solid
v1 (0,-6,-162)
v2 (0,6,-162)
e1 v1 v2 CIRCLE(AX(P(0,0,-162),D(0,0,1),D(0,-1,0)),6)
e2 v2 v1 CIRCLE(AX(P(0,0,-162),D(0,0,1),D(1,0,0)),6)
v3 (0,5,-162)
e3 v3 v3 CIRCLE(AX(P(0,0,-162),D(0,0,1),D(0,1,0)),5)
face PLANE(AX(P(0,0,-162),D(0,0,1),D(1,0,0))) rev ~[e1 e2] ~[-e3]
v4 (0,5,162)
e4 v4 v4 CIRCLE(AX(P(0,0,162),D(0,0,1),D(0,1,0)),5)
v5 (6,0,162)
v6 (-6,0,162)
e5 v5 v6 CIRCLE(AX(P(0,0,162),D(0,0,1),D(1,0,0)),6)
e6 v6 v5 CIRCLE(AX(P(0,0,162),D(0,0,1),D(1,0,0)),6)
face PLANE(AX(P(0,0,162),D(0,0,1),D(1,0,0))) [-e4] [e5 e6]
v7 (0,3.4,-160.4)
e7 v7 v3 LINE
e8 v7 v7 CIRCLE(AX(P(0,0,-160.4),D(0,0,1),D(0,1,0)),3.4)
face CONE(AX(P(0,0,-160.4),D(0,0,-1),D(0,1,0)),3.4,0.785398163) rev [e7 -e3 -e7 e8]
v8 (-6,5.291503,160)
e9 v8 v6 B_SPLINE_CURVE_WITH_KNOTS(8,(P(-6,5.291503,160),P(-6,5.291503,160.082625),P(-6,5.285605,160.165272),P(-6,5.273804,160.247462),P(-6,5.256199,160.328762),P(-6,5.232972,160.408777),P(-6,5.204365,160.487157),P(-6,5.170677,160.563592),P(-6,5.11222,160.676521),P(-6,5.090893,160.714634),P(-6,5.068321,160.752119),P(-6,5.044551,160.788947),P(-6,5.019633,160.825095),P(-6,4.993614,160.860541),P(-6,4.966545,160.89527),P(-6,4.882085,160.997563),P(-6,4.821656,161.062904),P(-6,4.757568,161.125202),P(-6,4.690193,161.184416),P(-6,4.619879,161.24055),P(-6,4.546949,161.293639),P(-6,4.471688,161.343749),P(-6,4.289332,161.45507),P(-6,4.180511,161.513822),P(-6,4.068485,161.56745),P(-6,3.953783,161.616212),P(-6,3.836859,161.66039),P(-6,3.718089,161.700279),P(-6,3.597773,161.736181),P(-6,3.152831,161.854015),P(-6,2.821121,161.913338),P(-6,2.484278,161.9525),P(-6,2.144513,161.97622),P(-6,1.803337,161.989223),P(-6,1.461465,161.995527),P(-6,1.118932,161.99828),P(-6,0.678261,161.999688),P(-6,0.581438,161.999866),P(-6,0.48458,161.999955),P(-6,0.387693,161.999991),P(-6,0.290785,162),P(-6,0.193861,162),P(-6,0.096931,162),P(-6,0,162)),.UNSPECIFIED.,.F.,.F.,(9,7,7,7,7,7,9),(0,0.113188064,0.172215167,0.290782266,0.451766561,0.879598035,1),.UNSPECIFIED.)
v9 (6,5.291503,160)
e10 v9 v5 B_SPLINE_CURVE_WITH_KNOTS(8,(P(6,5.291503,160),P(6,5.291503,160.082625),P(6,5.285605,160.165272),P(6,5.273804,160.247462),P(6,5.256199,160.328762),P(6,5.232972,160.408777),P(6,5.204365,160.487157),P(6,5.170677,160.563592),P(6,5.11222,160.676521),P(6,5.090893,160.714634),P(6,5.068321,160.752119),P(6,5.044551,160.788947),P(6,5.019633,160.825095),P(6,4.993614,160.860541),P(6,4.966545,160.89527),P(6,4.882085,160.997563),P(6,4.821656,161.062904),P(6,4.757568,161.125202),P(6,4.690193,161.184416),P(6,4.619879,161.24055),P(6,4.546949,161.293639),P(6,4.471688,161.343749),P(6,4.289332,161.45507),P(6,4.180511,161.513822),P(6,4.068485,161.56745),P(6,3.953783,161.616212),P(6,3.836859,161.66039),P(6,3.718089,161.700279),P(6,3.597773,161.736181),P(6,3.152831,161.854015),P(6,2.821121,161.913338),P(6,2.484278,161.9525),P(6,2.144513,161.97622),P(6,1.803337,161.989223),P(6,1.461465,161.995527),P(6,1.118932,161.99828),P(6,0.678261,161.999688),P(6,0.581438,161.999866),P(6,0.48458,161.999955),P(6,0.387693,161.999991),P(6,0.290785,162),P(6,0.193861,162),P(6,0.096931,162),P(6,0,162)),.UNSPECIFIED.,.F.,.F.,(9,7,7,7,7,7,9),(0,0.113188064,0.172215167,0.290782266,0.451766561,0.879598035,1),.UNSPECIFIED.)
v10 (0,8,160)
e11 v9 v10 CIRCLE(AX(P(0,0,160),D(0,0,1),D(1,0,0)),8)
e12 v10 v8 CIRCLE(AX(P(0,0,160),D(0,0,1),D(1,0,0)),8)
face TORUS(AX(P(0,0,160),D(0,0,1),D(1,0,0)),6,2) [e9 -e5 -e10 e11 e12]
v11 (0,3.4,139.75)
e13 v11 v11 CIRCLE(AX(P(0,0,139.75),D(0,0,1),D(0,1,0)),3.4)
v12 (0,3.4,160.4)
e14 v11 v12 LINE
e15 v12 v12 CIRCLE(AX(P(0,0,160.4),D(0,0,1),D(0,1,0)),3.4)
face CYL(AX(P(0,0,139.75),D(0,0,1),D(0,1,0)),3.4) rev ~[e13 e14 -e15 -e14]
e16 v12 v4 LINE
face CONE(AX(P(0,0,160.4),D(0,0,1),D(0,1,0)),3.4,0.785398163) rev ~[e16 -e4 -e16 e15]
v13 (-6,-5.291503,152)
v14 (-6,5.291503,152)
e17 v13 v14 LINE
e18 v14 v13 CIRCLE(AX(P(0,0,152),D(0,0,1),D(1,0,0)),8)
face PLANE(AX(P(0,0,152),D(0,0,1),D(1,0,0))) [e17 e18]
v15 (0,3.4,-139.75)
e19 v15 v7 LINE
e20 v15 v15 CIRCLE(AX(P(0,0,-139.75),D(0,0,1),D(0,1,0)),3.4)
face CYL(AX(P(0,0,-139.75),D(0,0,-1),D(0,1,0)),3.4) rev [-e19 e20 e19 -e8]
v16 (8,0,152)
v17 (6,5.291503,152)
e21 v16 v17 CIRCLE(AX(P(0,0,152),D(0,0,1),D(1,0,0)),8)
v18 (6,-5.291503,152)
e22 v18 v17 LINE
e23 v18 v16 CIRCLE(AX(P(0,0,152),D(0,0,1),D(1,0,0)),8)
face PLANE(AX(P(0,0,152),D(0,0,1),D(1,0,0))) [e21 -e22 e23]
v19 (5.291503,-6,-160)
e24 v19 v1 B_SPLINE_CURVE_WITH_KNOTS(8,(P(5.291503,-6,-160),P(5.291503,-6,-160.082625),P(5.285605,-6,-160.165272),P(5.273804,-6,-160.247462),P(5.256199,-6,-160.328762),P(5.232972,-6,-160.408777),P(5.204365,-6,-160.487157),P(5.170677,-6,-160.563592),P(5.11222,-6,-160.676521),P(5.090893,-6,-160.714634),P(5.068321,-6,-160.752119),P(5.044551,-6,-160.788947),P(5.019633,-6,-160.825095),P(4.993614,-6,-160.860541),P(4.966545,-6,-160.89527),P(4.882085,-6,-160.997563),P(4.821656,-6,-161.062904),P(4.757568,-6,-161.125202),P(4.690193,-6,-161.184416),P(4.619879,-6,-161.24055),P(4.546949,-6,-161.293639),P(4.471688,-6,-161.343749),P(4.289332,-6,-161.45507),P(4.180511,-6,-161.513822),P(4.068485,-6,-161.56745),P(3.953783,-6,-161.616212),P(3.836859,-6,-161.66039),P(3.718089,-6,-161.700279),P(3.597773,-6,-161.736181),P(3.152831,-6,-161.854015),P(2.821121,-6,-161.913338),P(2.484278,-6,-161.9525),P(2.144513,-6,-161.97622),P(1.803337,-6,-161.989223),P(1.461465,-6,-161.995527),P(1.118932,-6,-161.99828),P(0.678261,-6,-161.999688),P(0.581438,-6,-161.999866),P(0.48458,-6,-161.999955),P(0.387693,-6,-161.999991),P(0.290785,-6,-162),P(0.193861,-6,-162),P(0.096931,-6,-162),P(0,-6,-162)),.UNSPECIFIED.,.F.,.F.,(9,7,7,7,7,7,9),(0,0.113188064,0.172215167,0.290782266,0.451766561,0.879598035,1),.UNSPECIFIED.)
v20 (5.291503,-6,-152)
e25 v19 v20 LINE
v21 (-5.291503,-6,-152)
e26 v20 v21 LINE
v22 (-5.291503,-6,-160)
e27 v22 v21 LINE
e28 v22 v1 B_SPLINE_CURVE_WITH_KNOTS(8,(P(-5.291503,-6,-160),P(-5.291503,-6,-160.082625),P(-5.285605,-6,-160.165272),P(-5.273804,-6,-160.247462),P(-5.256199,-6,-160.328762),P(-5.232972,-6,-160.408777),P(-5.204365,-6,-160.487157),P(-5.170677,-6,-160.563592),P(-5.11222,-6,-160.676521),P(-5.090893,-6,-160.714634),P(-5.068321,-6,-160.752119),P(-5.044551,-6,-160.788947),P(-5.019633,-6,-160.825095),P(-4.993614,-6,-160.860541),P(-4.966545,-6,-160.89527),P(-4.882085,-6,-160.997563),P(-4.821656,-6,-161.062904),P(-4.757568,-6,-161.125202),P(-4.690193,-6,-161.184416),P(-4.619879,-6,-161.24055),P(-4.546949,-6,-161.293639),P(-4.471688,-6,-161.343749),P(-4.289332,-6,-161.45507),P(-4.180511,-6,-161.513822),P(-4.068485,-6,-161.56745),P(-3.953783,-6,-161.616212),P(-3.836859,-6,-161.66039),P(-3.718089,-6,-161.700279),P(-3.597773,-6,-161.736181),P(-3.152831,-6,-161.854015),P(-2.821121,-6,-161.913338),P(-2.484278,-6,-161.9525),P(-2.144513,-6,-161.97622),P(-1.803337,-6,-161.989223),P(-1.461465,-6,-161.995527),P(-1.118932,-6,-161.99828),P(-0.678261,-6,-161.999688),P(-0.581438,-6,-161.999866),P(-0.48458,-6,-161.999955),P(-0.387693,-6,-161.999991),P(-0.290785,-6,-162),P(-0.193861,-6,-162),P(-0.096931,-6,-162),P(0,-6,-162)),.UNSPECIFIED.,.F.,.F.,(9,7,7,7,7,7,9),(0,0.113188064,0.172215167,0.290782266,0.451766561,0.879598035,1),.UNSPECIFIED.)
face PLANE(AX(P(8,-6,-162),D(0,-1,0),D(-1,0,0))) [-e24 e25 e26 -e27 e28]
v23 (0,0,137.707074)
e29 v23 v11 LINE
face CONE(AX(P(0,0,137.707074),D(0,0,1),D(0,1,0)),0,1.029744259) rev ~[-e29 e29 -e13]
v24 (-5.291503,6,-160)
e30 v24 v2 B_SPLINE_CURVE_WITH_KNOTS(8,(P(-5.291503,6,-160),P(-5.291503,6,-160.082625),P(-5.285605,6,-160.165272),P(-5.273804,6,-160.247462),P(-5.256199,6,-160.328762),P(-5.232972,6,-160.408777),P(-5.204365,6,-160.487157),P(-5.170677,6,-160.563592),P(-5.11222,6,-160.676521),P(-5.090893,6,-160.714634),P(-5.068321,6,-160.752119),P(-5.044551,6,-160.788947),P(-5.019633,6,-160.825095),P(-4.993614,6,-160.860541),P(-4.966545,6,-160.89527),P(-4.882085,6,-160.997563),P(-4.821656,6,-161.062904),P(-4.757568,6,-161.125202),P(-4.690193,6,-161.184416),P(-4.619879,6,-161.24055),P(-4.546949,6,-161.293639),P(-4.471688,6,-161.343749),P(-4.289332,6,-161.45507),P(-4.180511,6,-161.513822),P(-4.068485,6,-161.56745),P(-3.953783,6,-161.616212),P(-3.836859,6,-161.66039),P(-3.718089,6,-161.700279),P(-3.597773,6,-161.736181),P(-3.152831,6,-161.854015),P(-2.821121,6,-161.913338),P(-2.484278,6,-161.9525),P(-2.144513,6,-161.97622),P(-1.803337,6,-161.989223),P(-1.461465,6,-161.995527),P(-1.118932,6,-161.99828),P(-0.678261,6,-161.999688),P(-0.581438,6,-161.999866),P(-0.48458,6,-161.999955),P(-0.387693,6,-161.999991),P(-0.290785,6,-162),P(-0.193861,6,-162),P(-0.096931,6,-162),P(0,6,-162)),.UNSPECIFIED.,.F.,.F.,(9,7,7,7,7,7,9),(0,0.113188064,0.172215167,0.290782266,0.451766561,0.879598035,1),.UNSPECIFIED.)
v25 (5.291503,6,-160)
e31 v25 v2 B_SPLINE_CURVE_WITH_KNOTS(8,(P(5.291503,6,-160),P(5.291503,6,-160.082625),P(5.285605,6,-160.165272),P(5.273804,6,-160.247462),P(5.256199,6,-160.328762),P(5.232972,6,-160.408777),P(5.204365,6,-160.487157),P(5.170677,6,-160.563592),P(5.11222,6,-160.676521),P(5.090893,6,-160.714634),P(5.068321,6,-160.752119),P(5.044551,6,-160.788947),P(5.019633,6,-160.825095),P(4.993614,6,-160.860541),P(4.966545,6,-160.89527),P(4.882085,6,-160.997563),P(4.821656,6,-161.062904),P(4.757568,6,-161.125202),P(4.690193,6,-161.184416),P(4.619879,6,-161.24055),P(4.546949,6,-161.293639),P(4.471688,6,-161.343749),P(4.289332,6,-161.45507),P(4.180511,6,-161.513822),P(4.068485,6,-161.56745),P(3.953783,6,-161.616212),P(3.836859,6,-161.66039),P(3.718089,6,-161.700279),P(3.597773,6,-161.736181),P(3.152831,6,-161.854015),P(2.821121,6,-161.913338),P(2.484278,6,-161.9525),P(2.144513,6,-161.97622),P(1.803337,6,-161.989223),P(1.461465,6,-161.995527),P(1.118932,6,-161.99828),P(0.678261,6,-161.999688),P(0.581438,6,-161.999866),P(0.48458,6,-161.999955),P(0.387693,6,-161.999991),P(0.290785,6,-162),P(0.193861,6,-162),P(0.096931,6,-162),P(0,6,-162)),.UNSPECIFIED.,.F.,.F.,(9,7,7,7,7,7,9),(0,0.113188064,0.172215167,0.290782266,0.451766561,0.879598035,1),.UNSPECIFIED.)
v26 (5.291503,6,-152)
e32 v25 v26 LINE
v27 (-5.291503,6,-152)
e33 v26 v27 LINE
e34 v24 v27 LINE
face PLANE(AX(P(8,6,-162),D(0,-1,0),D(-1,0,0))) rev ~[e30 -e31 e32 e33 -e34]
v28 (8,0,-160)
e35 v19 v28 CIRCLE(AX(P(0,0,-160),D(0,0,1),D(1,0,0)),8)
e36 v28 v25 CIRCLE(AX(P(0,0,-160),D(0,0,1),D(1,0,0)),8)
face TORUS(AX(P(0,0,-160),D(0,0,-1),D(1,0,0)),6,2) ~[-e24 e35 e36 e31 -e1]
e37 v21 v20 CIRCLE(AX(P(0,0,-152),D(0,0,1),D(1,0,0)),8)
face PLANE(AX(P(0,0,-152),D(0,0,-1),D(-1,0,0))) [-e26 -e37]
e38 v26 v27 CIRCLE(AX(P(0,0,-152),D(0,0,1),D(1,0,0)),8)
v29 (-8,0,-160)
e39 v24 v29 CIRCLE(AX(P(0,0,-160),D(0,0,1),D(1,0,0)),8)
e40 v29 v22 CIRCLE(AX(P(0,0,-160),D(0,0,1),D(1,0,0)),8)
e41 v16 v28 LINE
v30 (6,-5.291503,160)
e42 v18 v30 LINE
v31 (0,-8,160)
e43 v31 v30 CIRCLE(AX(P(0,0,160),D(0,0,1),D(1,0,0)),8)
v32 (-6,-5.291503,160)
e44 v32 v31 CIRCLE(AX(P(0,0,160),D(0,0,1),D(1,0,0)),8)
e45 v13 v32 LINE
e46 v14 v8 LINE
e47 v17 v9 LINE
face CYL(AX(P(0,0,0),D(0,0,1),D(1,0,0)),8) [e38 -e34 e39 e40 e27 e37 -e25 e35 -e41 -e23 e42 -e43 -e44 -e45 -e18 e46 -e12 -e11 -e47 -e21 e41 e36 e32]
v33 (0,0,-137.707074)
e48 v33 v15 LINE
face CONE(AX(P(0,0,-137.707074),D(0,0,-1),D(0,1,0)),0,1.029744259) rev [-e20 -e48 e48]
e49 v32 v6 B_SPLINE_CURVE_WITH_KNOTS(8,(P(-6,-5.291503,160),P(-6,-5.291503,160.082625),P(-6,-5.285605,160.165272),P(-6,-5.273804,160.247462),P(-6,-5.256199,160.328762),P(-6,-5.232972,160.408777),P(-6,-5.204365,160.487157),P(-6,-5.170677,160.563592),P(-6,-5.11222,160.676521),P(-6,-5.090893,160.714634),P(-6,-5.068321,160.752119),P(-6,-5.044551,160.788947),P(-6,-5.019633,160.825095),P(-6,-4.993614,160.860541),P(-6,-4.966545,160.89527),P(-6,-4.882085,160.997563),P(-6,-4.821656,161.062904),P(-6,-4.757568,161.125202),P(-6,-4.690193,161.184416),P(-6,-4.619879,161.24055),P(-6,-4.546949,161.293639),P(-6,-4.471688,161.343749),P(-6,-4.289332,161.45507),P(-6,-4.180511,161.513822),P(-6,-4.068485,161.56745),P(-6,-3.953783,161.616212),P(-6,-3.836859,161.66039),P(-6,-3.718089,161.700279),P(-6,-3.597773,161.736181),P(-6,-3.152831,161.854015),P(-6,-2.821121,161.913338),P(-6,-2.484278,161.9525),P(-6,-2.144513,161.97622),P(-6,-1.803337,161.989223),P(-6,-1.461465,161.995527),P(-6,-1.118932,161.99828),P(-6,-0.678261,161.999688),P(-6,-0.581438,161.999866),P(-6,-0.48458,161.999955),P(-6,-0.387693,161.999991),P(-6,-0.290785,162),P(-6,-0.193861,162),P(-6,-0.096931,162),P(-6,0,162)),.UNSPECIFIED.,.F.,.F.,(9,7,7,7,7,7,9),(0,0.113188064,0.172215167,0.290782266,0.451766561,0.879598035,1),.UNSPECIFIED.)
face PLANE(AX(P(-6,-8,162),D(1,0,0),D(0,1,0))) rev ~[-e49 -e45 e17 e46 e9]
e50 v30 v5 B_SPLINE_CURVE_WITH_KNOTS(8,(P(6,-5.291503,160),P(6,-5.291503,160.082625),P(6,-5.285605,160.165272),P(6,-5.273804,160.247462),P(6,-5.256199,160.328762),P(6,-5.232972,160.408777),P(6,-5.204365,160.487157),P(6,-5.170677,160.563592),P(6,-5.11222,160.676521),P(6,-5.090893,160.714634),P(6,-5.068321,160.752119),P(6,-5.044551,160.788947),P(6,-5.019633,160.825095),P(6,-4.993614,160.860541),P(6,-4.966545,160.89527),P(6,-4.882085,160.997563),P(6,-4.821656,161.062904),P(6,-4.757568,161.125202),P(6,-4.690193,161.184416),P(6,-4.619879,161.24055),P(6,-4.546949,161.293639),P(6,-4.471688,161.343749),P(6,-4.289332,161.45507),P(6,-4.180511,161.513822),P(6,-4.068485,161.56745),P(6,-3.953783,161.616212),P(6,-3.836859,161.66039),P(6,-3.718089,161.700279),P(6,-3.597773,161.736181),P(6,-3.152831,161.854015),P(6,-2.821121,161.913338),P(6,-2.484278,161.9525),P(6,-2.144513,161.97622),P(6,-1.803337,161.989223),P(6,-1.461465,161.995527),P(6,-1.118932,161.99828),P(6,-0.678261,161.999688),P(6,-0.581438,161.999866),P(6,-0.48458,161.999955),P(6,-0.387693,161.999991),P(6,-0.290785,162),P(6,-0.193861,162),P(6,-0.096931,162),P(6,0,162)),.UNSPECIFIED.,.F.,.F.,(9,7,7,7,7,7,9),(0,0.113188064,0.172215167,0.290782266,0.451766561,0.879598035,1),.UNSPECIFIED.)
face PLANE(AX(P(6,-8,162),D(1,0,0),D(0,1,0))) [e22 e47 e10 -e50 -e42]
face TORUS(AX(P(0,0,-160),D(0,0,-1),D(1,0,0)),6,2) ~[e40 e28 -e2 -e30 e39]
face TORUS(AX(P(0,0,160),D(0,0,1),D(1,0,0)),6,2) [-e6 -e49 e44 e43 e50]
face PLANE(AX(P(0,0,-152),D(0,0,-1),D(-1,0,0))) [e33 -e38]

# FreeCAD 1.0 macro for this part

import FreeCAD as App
import Part
import Sketcher
Q = App.Units.Quantity


def edges_at(feature, points):
    """Names of the edges that pass closest to the given points."""
    edges = feature.Shape.Edges
    near = lambda p: min(range(len(edges)), key=lambda i: edges[i].distToShape(Part.Vertex(*p))[0])
    return sorted({f"Edge{near(p) + 1}" for p in points})

doc = App.newDocument("Part")
body = doc.addObject("PartDesign::Body", "Body")

sketch1 = body.newObject("Sketcher::SketchObject", "Sketch")
sketch1.AttachmentSupport = (doc.getObject("XY_Plane"), [""])
sketch1.MapMode = "FlatFace"
sketch1.addGeometry(Part.Circle(App.Vector(0, 0, 0), App.Vector(0, 0, 1), 8), False)
sketch1.addConstraint([
    Sketcher.Constraint("Coincident", 0, 3, -1, 1),
    Sketcher.Constraint("Diameter", 0, Q("16 mm")),
])
pad1 = body.newObject("PartDesign::Pad", "Pad")
pad1.Profile = sketch1
pad1.Length = 324
pad1.Midplane = True
doc.recompute()

fillet = body.newObject("PartDesign::Fillet", "Fillet")
fillet.Base = (pad1, edges_at(pad1, [(-8, 0, -162), (-8, 0, 162)]))
fillet.Radius = 2

sketch2 = body.newObject("Sketcher::SketchObject", "Sketch001")
sketch2.AttachmentSupport = (doc.getObject("YZ_Plane"), [""])
sketch2.MapMode = "FlatFace"
sketch2.addGeometry([
    Part.LineSegment(App.Vector(0, -137.7, 0), App.Vector(0, -162, 0)),
    Part.LineSegment(App.Vector(0, -162, 0), App.Vector(5, -162, 0)),
    Part.LineSegment(App.Vector(5, -162, 0), App.Vector(3.4, -160.4, 0)),
    Part.LineSegment(App.Vector(3.4, -160.4, 0), App.Vector(3.4, -139.8, 0)),
    Part.LineSegment(App.Vector(3.4, -139.8, 0), App.Vector(0, -137.7, 0)),
], False)
sketch2.addConstraint([
    Sketcher.Constraint("Coincident", 0, 2, 1, 1),
    Sketcher.Constraint("Coincident", 1, 2, 2, 1),
    Sketcher.Constraint("Coincident", 2, 2, 3, 1),
    Sketcher.Constraint("Coincident", 3, 2, 4, 1),
    Sketcher.Constraint("Coincident", 4, 2, 0, 1),
    Sketcher.Constraint("Vertical", 0),
    Sketcher.Constraint("Horizontal", 1),
    Sketcher.Constraint("Vertical", 3),
    Sketcher.Constraint("PointOnObject", 0, 2, -2),
    Sketcher.Constraint("DistanceX", 1, 1, 1, 2, Q("5 mm")),
    Sketcher.Constraint("Angle", 2, Q("135 deg")),
    Sketcher.Constraint("Angle", 4, Q("149 deg")),
    Sketcher.Constraint("DistanceY", 0, 2, -1, 1, Q("162 mm")),
    Sketcher.Constraint("DistanceY", 3, 1, 3, 2, Q("20.65 mm")),
    Sketcher.Constraint("DistanceX", -1, 1, 2, 2, Q("3.4 mm")),
])
groove = body.newObject("PartDesign::Groove", "Groove")
groove.Profile = sketch2
groove.ReferenceAxis = (sketch2, ["V_Axis"])
groove.Angle = 360
doc.recompute()

mirrored = body.newObject("PartDesign::Mirrored", "Mirrored")
mirrored.Originals = [groove]
mirrored.MirrorPlane = (doc.getObject("XY_Plane"), [""])
body.Tip = mirrored

sketch3 = body.newObject("Sketcher::SketchObject", "Sketch002")
sketch3.AttachmentSupport = (doc.getObject("XY_Plane"), [""])
sketch3.MapMode = "FlatFace"
sketch3.AttachmentOffset = App.Placement(App.Vector(0, 0, -162), App.Rotation())
sketch3.addGeometry([
    Part.LineSegment(App.Vector(41, 41, 0), App.Vector(41, -41, 0)),
    Part.LineSegment(App.Vector(41, -41, 0), App.Vector(-41, -41, 0)),
    Part.LineSegment(App.Vector(-41, -41, 0), App.Vector(-41, 41, 0)),
    Part.LineSegment(App.Vector(-41, 41, 0), App.Vector(41, 41, 0)),
    Part.LineSegment(App.Vector(-8, -6, 0), App.Vector(8, -6, 0)),
    Part.LineSegment(App.Vector(8, -6, 0), App.Vector(8, 6, 0)),
    Part.LineSegment(App.Vector(8, 6, 0), App.Vector(-8, 6, 0)),
    Part.LineSegment(App.Vector(-8, 6, 0), App.Vector(-8, -6, 0)),
], False)
sketch3.addConstraint([
    Sketcher.Constraint("Coincident", 0, 2, 1, 1),
    Sketcher.Constraint("Coincident", 1, 2, 2, 1),
    Sketcher.Constraint("Coincident", 2, 2, 3, 1),
    Sketcher.Constraint("Coincident", 3, 2, 0, 1),
    Sketcher.Constraint("Coincident", 4, 2, 5, 1),
    Sketcher.Constraint("Coincident", 5, 2, 6, 1),
    Sketcher.Constraint("Coincident", 6, 2, 7, 1),
    Sketcher.Constraint("Coincident", 7, 2, 4, 1),
    Sketcher.Constraint("Vertical", 0),
    Sketcher.Constraint("Horizontal", 1),
    Sketcher.Constraint("Vertical", 2),
    Sketcher.Constraint("Horizontal", 3),
    Sketcher.Constraint("Horizontal", 4),
    Sketcher.Constraint("Vertical", 5),
    Sketcher.Constraint("Horizontal", 6),
    Sketcher.Constraint("Vertical", 7),
    Sketcher.Constraint("Symmetric", 0, 2, 2, 2, -1, 1),
    Sketcher.Constraint("Symmetric", 4, 2, 6, 2, -1, 1),
    Sketcher.Constraint("Equal", 3, 0),
    Sketcher.Constraint("DistanceX", 4, 1, 4, 2, Q("16 mm")),
    Sketcher.Constraint("DistanceY", 5, 1, 5, 2, Q("12 mm")),
    Sketcher.Constraint("DistanceX", 1, 2, 1, 1, Q("82.958 mm")),
])
pocket1 = body.newObject("PartDesign::Pocket", "Pocket")
pocket1.Profile = sketch3
pocket1.Length = 10
pocket1.Reversed = True

sketch4 = body.newObject("Sketcher::SketchObject", "Sketch003")
sketch4.AttachmentSupport = (doc.getObject("XY_Plane"), [""])
sketch4.MapMode = "FlatFace"
sketch4.AttachmentOffset = App.Placement(App.Vector(0, 0, 162), App.Rotation())
sketch4.addGeometry([
    Part.LineSegment(App.Vector(-41, 41, 0), App.Vector(-41, -41, 0)),
    Part.LineSegment(App.Vector(-41, -41, 0), App.Vector(41, -41, 0)),
    Part.LineSegment(App.Vector(41, -41, 0), App.Vector(41, 41, 0)),
    Part.LineSegment(App.Vector(41, 41, 0), App.Vector(-41, 41, 0)),
    Part.LineSegment(App.Vector(6, -8, 0), App.Vector(-6, -8, 0)),
    Part.LineSegment(App.Vector(-6, -8, 0), App.Vector(-6, 8, 0)),
    Part.LineSegment(App.Vector(-6, 8, 0), App.Vector(6, 8, 0)),
    Part.LineSegment(App.Vector(6, 8, 0), App.Vector(6, -8, 0)),
], False)
sketch4.addConstraint([
    Sketcher.Constraint("Coincident", 0, 2, 1, 1),
    Sketcher.Constraint("Coincident", 1, 2, 2, 1),
    Sketcher.Constraint("Coincident", 2, 2, 3, 1),
    Sketcher.Constraint("Coincident", 3, 2, 0, 1),
    Sketcher.Constraint("Coincident", 4, 2, 5, 1),
    Sketcher.Constraint("Coincident", 5, 2, 6, 1),
    Sketcher.Constraint("Coincident", 6, 2, 7, 1),
    Sketcher.Constraint("Coincident", 7, 2, 4, 1),
    Sketcher.Constraint("Vertical", 0),
    Sketcher.Constraint("Horizontal", 1),
    Sketcher.Constraint("Vertical", 2),
    Sketcher.Constraint("Horizontal", 3),
    Sketcher.Constraint("Horizontal", 4),
    Sketcher.Constraint("Vertical", 5),
    Sketcher.Constraint("Horizontal", 6),
    Sketcher.Constraint("Vertical", 7),
    Sketcher.Constraint("Symmetric", 0, 2, 2, 2, -1, 1),
    Sketcher.Constraint("Symmetric", 4, 2, 6, 2, -1, 1),
    Sketcher.Constraint("Equal", 3, 0),
    Sketcher.Constraint("DistanceX", 4, 2, 4, 1, Q("12 mm")),
    Sketcher.Constraint("DistanceY", 5, 1, 5, 2, Q("16 mm")),
    Sketcher.Constraint("DistanceX", 1, 1, 1, 2, Q("82.958 mm")),
])
pocket2 = body.newObject("PartDesign::Pocket", "Pocket001")
pocket2.Profile = sketch4
pocket2.Length = 10

doc.recompute()
